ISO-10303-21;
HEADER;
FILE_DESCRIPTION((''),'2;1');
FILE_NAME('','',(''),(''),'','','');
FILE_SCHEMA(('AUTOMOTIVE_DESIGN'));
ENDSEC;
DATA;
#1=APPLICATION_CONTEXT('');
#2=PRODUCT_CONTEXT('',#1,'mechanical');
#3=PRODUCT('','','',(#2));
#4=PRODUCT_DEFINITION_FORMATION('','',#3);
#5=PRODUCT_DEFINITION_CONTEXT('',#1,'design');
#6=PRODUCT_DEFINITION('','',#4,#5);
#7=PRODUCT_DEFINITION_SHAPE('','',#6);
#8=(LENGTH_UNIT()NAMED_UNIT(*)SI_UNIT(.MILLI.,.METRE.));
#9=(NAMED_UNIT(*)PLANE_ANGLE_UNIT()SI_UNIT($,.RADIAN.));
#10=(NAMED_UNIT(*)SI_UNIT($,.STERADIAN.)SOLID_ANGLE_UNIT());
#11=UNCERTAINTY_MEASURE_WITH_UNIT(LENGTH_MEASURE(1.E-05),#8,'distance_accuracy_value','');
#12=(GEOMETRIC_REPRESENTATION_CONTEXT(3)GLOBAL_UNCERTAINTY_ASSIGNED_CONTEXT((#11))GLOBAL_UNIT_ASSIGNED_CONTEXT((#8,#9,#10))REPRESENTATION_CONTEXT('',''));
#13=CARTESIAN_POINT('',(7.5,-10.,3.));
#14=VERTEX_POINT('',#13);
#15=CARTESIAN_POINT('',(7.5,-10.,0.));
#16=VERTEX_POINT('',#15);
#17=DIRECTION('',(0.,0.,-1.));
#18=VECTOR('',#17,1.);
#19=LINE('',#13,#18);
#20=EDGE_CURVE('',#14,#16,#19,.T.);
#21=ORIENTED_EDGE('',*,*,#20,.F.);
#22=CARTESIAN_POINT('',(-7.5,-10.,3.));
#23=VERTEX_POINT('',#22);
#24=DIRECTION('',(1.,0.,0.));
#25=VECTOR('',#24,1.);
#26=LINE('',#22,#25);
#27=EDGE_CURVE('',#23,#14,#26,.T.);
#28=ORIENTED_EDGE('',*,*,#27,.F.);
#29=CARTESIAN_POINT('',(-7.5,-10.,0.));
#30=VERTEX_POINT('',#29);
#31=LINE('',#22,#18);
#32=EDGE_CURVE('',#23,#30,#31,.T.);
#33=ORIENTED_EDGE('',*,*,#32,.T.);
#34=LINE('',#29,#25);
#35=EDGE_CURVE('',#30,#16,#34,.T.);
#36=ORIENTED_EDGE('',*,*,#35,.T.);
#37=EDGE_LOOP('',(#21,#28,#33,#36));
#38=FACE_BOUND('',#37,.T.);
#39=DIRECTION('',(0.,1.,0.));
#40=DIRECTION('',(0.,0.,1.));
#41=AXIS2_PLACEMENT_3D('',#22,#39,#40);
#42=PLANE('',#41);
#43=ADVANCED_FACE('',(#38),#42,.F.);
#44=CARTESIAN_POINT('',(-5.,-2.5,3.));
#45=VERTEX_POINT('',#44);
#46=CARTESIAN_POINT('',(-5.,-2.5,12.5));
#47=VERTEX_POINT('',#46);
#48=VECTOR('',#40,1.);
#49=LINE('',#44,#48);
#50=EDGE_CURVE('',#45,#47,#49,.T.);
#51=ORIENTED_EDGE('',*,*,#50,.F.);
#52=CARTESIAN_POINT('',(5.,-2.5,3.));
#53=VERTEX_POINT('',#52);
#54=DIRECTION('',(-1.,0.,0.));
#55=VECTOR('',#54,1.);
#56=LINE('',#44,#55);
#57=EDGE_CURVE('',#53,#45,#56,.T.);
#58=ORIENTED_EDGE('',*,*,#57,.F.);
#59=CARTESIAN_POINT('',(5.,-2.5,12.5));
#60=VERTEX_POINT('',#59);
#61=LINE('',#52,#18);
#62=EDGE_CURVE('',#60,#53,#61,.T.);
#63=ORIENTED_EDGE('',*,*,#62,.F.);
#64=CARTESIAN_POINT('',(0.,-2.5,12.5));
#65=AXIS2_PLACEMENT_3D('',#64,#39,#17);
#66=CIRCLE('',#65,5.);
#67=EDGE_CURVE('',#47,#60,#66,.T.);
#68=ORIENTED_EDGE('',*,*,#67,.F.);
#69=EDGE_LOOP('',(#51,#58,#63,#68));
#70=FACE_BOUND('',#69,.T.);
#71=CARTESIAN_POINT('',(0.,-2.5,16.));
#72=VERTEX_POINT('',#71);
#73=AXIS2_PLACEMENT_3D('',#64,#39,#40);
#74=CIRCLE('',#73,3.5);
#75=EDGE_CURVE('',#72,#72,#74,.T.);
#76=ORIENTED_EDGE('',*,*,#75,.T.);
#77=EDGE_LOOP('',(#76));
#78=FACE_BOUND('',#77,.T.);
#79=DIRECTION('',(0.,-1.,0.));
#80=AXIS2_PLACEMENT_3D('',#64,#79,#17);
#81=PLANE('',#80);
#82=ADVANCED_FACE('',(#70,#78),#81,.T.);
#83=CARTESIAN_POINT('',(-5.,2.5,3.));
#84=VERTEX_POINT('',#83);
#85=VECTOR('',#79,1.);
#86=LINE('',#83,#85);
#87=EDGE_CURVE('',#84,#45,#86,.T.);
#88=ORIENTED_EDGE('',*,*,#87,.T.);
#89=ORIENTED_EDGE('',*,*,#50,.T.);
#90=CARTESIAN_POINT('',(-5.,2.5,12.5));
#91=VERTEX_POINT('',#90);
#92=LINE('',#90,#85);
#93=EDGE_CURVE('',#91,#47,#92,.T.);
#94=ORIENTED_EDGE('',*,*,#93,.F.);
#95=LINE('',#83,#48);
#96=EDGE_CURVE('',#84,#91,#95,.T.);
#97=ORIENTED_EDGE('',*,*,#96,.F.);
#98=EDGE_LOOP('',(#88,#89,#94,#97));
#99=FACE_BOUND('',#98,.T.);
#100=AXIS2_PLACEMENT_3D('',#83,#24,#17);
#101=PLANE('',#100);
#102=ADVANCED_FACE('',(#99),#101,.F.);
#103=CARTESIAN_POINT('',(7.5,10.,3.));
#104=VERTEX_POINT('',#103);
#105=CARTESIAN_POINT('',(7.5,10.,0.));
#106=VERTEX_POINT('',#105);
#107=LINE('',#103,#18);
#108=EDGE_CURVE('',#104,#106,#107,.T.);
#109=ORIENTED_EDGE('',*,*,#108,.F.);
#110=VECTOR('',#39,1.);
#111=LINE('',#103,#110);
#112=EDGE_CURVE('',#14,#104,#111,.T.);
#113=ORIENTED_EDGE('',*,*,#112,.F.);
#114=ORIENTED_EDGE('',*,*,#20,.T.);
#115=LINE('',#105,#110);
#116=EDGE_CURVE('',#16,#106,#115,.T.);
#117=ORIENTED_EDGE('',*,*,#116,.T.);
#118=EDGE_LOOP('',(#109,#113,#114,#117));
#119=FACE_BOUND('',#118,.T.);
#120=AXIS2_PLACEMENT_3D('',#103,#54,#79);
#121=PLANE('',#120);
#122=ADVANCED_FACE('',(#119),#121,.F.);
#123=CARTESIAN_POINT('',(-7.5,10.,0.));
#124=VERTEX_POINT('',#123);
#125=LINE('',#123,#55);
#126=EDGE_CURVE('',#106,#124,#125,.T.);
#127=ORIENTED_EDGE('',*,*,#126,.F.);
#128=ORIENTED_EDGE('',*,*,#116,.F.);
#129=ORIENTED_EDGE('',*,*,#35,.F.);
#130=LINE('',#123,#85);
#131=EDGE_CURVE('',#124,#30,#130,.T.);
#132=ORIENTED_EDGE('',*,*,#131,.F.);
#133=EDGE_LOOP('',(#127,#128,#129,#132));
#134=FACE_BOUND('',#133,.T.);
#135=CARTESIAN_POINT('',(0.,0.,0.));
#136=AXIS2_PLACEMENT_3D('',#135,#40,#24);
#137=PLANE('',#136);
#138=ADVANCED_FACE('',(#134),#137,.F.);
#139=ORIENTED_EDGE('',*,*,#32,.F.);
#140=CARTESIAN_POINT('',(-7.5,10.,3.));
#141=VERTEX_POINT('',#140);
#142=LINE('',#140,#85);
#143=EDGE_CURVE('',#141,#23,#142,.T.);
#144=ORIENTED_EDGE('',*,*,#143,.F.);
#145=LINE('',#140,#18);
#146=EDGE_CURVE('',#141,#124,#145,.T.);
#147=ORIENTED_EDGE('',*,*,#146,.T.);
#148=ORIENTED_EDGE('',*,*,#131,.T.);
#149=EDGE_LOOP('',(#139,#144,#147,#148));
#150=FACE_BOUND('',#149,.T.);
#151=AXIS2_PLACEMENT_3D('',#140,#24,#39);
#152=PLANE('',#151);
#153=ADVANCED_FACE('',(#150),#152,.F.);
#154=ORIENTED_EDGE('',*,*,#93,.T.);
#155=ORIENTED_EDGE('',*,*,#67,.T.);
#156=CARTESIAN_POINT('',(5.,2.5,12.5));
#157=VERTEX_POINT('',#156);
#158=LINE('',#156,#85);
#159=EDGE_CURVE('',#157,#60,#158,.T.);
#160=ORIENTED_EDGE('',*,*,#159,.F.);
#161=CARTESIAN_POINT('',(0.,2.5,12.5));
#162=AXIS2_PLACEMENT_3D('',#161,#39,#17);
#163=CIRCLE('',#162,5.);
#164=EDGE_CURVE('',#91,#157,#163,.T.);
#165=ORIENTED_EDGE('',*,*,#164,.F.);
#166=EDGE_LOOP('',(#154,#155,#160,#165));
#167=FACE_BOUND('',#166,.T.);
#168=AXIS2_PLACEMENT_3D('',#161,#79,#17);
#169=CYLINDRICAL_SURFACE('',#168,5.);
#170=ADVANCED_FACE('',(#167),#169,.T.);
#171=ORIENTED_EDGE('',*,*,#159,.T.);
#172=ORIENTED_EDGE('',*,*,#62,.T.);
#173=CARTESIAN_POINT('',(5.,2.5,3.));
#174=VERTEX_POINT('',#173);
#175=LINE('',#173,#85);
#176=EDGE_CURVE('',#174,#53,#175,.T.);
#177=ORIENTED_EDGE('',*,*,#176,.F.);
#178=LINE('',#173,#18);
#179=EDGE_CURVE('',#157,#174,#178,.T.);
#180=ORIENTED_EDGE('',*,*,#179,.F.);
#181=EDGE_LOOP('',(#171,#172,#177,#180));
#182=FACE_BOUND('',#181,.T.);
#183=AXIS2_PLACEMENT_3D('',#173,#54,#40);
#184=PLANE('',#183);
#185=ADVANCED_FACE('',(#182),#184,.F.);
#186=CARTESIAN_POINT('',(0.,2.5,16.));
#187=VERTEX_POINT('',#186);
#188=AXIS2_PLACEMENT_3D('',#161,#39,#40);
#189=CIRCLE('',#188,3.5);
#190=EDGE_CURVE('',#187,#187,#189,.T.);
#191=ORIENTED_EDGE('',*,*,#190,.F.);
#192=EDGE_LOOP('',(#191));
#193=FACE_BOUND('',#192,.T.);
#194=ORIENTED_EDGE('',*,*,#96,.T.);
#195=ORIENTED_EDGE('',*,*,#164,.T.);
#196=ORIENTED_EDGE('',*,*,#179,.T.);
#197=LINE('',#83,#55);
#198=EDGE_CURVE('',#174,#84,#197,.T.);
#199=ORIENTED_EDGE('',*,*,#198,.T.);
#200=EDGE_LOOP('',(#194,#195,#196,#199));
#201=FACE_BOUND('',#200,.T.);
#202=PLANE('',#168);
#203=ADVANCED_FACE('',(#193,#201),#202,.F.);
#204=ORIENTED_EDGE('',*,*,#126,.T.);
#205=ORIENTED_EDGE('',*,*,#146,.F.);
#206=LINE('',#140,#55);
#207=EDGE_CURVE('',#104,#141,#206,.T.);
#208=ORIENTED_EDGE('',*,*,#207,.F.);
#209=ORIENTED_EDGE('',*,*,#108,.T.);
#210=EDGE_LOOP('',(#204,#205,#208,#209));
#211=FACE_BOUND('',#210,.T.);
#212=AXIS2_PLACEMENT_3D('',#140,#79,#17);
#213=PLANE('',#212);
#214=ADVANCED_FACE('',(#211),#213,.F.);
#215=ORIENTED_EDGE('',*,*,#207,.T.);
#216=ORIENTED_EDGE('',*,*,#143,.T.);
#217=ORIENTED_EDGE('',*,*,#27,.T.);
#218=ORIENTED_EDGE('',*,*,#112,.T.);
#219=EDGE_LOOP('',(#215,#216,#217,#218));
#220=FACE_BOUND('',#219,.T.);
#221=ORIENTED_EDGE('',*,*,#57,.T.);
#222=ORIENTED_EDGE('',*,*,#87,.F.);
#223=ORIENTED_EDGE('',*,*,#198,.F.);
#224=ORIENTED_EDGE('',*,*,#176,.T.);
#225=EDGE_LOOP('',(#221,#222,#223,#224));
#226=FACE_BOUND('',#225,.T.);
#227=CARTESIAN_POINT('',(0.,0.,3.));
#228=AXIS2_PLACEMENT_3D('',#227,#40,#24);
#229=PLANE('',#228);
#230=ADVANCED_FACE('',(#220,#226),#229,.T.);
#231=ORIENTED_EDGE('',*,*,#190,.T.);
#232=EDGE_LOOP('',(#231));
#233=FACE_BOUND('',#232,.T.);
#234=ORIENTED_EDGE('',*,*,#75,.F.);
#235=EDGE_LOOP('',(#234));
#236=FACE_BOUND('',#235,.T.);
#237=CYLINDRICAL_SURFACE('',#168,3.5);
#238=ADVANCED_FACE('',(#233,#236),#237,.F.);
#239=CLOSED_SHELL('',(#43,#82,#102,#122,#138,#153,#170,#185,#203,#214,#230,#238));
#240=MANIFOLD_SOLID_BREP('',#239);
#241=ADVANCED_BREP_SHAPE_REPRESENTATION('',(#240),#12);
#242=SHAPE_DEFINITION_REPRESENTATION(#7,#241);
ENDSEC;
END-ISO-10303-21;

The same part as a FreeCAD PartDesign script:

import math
import FreeCAD as App
import Part
import Sketcher


def add_polygon(sketch, points):
    """Adds a closed chain of lines whose ends are joined by coincident constraints."""
    first, n = sketch.GeometryCount, len(points)
    for a, b in zip(points, points[1:] + points[:1]):
        sketch.addGeometry(Part.LineSegment(App.Vector(*a, 0), App.Vector(*b, 0)), False)
    for i in range(n):
        sketch.addConstraint(Sketcher.Constraint("Coincident", first + i, 2, first + (i + 1) % n, 1))

doc = App.newDocument("Part")
params = doc.addObject("Spreadsheet::Sheet", "Params")
for row, (alias, value) in enumerate([
    ("sketch1_width", "15 mm"),
    ("sketch1_height", "20 mm"),
    ("pad1_length", "3 mm"),
    ("sketch2_diameter", "7 mm"),
    ("sketch2_radius", "5 mm"),
    ("sketch2_height", "9.5 mm"),
    ("pad2_length", "5 mm"),
], start=1):
    params.set(f"A{row}", alias)
    params.set(f"B{row}", "=" + value)
    params.setAlias(f"B{row}", alias)

body = doc.addObject("PartDesign::Body", "Body")

sketch1 = body.newObject("Sketcher::SketchObject", "Sketch")
sketch1.AttachmentSupport = (doc.getObject("XY_Plane"), [""])
sketch1.MapMode = "FlatFace"
add_polygon(sketch1, [(-8, 10), (-8, -10), (8, -10), (8, 10)])
sketch1.addConstraint([
    Sketcher.Constraint("Vertical", 0),
    Sketcher.Constraint("Horizontal", 1),
    Sketcher.Constraint("Vertical", 2),
    Sketcher.Constraint("Horizontal", 3),
    Sketcher.Constraint("Symmetric", 0, 2, 2, 2, -1, 1),
    Sketcher.Constraint("DistanceX", 1, 1, 1, 2, 15.0),
    Sketcher.Constraint("DistanceY", 0, 2, 0, 1, 20.0),
])
sketch1.setExpression("Constraints[9]", "Params.sketch1_width")
sketch1.setExpression("Constraints[10]", "Params.sketch1_height")
pad1 = body.newObject("PartDesign::Pad", "Pad")
pad1.Profile = sketch1
pad1.setExpression("Length", "Params.pad1_length")

sketch2 = body.newObject("Sketcher::SketchObject", "Sketch001")
sketch2.AttachmentSupport = (doc.getObject("XZ_Plane"), [""])
sketch2.MapMode = "FlatFace"
sketch2.addGeometry([
    Part.LineSegment(App.Vector(5, 3, 0), App.Vector(-5, 3, 0)),
    Part.LineSegment(App.Vector(-5, 3, 0), App.Vector(-5, 12.5, 0)),
    Part.ArcOfCircle(Part.Circle(App.Vector(0, 12.5, 0), App.Vector(0, 0, 1), 5), math.radians(0), math.radians(180)),
    Part.LineSegment(App.Vector(5, 12.5, 0), App.Vector(5, 3, 0)),
    Part.Circle(App.Vector(0, 12.5, 0), App.Vector(0, 0, 1), 3.5),
], False)
sketch2.addConstraint([
    Sketcher.Constraint("Coincident", 0, 2, 1, 1),
    Sketcher.Constraint("Tangent", 1, 2, 2, 2),
    Sketcher.Constraint("Tangent", 2, 1, 3, 1),
    Sketcher.Constraint("Coincident", 3, 2, 0, 1),
    Sketcher.Constraint("Horizontal", 0),
    Sketcher.Constraint("Vertical", 1),
    Sketcher.Constraint("Vertical", 3),
    Sketcher.Constraint("Coincident", 4, 3, 2, 3),
    Sketcher.Constraint("PointOnObject", 2, 3, -2),
    Sketcher.Constraint("Diameter", 4, 7.0),
    Sketcher.Constraint("Radius", 2, 5.0),
    Sketcher.Constraint("DistanceY", 1, 1, 1, 2, 9.5),
    Sketcher.Constraint("DistanceY", -1, 1, 0, 2, 3.0),
])
sketch2.setExpression("Constraints[9]", "Params.sketch2_diameter")
sketch2.setExpression("Constraints[10]", "Params.sketch2_radius")
sketch2.setExpression("Constraints[11]", "Params.sketch2_height")
pad2 = body.newObject("PartDesign::Pad", "Pad001")
pad2.Profile = sketch2
pad2.setExpression("Length", "Params.pad2_length")
pad2.Midplane = True

doc.recompute()
